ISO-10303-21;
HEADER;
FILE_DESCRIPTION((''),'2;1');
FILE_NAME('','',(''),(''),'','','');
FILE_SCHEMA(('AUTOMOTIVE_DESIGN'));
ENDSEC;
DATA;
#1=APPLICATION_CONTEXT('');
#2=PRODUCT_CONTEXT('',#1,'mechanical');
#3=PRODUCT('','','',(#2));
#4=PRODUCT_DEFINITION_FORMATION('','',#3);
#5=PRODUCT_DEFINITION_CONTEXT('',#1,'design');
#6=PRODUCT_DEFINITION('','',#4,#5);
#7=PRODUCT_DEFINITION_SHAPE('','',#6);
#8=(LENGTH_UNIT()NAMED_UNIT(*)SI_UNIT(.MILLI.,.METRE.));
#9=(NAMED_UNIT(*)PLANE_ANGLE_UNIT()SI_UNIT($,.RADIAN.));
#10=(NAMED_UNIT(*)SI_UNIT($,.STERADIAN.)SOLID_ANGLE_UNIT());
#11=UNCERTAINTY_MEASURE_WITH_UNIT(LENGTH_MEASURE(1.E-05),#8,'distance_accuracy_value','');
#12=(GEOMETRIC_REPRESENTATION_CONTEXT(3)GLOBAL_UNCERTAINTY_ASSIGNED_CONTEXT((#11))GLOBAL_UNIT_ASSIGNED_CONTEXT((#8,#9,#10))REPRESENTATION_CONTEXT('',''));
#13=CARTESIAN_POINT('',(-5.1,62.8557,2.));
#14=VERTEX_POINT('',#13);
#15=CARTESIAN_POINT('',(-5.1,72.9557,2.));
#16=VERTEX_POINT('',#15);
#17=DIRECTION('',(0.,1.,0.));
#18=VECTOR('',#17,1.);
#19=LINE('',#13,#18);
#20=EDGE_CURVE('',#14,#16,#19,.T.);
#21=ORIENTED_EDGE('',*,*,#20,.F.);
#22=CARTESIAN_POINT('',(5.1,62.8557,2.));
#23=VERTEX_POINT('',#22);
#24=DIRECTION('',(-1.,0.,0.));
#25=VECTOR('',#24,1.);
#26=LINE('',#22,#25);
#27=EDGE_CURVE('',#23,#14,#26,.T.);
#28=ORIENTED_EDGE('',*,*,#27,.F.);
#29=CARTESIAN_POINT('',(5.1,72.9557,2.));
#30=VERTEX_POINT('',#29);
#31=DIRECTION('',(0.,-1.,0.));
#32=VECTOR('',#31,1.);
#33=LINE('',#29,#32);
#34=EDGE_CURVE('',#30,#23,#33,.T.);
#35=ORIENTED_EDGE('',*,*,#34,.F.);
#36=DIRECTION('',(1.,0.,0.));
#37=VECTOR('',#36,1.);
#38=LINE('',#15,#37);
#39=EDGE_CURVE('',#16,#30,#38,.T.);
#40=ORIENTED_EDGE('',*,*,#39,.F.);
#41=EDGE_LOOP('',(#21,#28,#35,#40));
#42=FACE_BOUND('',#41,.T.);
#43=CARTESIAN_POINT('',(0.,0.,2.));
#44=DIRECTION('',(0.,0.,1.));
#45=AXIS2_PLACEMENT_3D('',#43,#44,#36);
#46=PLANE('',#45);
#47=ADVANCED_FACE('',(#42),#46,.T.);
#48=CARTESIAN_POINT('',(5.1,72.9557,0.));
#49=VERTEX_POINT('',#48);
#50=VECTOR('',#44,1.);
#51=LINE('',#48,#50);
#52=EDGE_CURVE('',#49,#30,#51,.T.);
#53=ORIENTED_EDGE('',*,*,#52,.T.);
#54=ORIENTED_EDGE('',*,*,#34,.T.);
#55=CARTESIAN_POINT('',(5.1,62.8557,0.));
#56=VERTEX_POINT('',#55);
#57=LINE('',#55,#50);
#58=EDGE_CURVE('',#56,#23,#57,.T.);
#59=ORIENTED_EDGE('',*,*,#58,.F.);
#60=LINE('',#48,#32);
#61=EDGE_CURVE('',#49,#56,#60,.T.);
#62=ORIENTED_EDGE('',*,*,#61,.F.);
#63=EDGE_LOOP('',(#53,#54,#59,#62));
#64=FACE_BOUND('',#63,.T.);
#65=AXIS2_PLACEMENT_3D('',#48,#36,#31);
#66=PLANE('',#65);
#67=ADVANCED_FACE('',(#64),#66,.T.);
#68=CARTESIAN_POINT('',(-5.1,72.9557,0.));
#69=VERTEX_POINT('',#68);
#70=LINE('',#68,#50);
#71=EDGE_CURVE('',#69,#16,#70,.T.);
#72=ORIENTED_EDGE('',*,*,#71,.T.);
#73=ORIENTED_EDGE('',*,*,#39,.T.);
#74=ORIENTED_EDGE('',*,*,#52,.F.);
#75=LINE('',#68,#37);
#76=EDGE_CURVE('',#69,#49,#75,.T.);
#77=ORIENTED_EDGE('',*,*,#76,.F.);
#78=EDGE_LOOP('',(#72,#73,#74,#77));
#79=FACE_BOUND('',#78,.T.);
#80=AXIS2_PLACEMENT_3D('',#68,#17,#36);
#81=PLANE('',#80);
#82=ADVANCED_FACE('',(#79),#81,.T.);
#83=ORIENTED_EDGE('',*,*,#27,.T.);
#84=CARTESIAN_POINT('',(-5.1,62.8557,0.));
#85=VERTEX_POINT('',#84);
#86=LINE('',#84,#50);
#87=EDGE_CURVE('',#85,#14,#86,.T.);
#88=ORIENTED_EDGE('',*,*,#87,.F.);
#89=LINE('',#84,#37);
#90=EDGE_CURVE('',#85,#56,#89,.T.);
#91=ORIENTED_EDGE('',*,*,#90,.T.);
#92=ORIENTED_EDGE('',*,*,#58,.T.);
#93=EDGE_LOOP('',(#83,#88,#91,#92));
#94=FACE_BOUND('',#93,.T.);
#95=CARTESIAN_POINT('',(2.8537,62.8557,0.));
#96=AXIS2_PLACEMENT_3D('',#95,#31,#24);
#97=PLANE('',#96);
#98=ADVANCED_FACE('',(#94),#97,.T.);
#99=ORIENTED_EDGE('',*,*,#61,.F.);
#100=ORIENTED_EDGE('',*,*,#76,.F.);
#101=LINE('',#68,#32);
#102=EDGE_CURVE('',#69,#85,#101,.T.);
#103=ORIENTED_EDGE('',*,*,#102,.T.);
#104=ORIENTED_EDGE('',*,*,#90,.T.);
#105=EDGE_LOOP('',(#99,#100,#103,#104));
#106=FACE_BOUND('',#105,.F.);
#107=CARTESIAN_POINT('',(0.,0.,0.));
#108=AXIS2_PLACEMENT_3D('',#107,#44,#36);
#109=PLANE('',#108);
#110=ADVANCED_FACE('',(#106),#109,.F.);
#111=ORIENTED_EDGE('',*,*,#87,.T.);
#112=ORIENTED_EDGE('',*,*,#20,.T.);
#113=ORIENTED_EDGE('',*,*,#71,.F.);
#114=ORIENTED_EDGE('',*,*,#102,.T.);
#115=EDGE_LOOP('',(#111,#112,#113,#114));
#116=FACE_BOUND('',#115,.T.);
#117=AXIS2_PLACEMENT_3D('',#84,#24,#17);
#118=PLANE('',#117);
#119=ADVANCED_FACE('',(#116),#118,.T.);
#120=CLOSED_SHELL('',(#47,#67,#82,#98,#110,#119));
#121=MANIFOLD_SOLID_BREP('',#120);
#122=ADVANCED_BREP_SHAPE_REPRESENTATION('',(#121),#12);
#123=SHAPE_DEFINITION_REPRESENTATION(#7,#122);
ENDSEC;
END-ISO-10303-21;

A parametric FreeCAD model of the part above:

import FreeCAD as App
import Part
import Sketcher
from FreeCAD import Vector


def add_polygon(sketch, points):
    """Adds a closed chain of lines whose ends are joined by coincident constraints."""
    first, n = sketch.GeometryCount, len(points)
    for a, b in zip(points, points[1:] + points[:1]):
        sketch.addGeometry(Part.LineSegment(App.Vector(*a, 0), App.Vector(*b, 0)), False)
    for i in range(n):
        sketch.addConstraint(Sketcher.Constraint("Coincident", first + i, 2, first + (i + 1) % n, 1))

doc = App.newDocument("Part")
body = doc.addObject("PartDesign::Body", "Body")

sketch1 = body.newObject("Sketcher::SketchObject", "Sketch")
sketch1.AttachmentSupport = (doc.getObject("XY_Plane"), [""])
sketch1.MapMode = "FlatFace"
add_polygon(sketch1, [(-5, 63), (5, 63), (5, 73), (-5, 73)])
sketch1.addConstraint([
    Sketcher.Constraint("Horizontal", 0),
    Sketcher.Constraint("Vertical", 1),
    Sketcher.Constraint("Horizontal", 2),
    Sketcher.Constraint("Vertical", 3),
    Sketcher.Constraint("DistanceX", 0, 1, 0, 2, 10.2),
    Sketcher.Constraint("DistanceY", 1, 1, 1, 2, 10.1),
    Sketcher.Constraint("DistanceX", -1, 1, 0, 2, 5.1),
    Sketcher.Constraint("DistanceY", -1, 1, 0, 2, 62.8557),
])
pad1 = body.newObject("PartDesign::Pad", "Pad")
pad1.Profile = sketch1
pad1.Length = 2

doc.recompute()
